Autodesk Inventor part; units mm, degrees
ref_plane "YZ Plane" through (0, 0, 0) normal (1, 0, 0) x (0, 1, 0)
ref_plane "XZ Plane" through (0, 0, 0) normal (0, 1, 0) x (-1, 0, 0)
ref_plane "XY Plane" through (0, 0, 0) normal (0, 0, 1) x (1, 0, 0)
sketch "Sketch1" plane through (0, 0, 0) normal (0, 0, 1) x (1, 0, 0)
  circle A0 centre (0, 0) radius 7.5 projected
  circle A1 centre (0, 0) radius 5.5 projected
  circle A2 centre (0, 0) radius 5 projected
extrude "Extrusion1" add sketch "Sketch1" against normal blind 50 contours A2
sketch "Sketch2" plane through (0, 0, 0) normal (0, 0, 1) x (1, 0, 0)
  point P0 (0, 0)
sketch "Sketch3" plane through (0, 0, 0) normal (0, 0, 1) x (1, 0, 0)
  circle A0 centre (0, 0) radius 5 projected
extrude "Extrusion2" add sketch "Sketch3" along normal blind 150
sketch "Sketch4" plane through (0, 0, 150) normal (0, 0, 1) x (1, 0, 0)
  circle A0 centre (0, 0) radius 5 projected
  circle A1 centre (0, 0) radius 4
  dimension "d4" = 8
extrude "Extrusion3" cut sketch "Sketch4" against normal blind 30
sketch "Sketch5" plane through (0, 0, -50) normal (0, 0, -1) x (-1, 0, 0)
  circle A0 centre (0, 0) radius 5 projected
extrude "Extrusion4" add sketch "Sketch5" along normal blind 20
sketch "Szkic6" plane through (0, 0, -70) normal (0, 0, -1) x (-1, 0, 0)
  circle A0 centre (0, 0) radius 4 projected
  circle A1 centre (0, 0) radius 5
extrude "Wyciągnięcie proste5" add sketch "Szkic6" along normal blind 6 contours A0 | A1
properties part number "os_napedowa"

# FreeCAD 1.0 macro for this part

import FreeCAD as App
import Part
import Sketcher
Q = App.Units.Quantity

doc = App.newDocument("Part")
body = doc.addObject("PartDesign::Body", "Body")

# Sketch on XY plane
sketch1 = doc.addObject("Sketcher::SketchObject", "Sketch")
body.addObject(sketch1)
sketch1.AttachmentSupport = (doc.XY_Plane, [""])
sketch1.MapMode = "FlatFace"
sketch1.addGeometry(Part.Circle(App.Vector(0, 0, 0), App.Vector(0, 0, 1), 5), False)
sketch1.addConstraint([
    Sketcher.Constraint("Coincident", 0, 3, -1, 1),
    Sketcher.Constraint("Diameter", 0, Q("10 mm")),
])
pad1 = doc.addObject("PartDesign::Pad", "Pad")
body.addObject(pad1)
pad1.Profile = sketch1
pad1.Length = 50
pad1.Reversed = True

# Sketch on XY plane
sketch2 = doc.addObject("Sketcher::SketchObject", "Sketch001")
body.addObject(sketch2)
sketch2.AttachmentSupport = (doc.XY_Plane, [""])
sketch2.MapMode = "FlatFace"
sketch2.addGeometry(Part.Circle(App.Vector(0, 0, 0), App.Vector(0, 0, 1), 5), False)
sketch2.addConstraint([
    Sketcher.Constraint("Coincident", 0, 3, -1, 1),
    Sketcher.Constraint("Diameter", 0, Q("10 mm")),
])
pad2 = doc.addObject("PartDesign::Pad", "Pad001")
body.addObject(pad2)
pad2.Profile = sketch2
pad2.Length = 150

# Sketch on XY plane
sketch3 = doc.addObject("Sketcher::SketchObject", "Sketch002")
body.addObject(sketch3)
sketch3.AttachmentSupport = (doc.XY_Plane, [""])
sketch3.MapMode = "FlatFace"
sketch3.AttachmentOffset = App.Placement(App.Vector(0, 0, 150), App.Rotation())
sketch3.addGeometry([
    Part.Circle(App.Vector(0, 0, 0), App.Vector(0, 0, 1), 5),
    Part.Circle(App.Vector(0, 0, 0), App.Vector(0, 0, 1), 4),
], False)
sketch3.addConstraint([
    Sketcher.Constraint("Coincident", 0, 3, -1, 1),
    Sketcher.Constraint("Coincident", 1, 3, -1, 1),
    Sketcher.Constraint("Diameter", 1, Q("8 mm")),
    Sketcher.Constraint("Diameter", 0, Q("10 mm")),
])
pocket1 = doc.addObject("PartDesign::Pocket", "Pocket")
body.addObject(pocket1)
pocket1.Profile = sketch3
pocket1.Length = 30

# Sketch on XY plane
sketch4 = doc.addObject("Sketcher::SketchObject", "Sketch003")
body.addObject(sketch4)
sketch4.AttachmentSupport = (doc.XY_Plane, [""])
sketch4.MapMode = "FlatFace"
sketch4.AttachmentOffset = App.Placement(App.Vector(0, 0, -50), App.Rotation())
sketch4.addGeometry(Part.Circle(App.Vector(0, 0, 0), App.Vector(0, 0, 1), 5), False)
sketch4.addConstraint([
    Sketcher.Constraint("Coincident", 0, 3, -1, 1),
    Sketcher.Constraint("Diameter", 0, Q("10 mm")),
])
pad3 = doc.addObject("PartDesign::Pad", "Pad002")
body.addObject(pad3)
pad3.Profile = sketch4
pad3.Length = 20
pad3.Reversed = True

# Sketch on XY plane
sketch5 = doc.addObject("Sketcher::SketchObject", "Sketch004")
body.addObject(sketch5)
sketch5.AttachmentSupport = (doc.XY_Plane, [""])
sketch5.MapMode = "FlatFace"
sketch5.AttachmentOffset = App.Placement(App.Vector(0, 0, -70), App.Rotation())
sketch5.addGeometry(Part.Circle(App.Vector(0, 0, 0), App.Vector(0, 0, 1), 5), False)
sketch5.addConstraint([
    Sketcher.Constraint("Coincident", 0, 3, -1, 1),
    Sketcher.Constraint("Diameter", 0, Q("10 mm")),
])
pad4 = doc.addObject("PartDesign::Pad", "Pad003")
body.addObject(pad4)
pad4.Profile = sketch5
pad4.Length = 6
pad4.Reversed = True

doc.recompute()
